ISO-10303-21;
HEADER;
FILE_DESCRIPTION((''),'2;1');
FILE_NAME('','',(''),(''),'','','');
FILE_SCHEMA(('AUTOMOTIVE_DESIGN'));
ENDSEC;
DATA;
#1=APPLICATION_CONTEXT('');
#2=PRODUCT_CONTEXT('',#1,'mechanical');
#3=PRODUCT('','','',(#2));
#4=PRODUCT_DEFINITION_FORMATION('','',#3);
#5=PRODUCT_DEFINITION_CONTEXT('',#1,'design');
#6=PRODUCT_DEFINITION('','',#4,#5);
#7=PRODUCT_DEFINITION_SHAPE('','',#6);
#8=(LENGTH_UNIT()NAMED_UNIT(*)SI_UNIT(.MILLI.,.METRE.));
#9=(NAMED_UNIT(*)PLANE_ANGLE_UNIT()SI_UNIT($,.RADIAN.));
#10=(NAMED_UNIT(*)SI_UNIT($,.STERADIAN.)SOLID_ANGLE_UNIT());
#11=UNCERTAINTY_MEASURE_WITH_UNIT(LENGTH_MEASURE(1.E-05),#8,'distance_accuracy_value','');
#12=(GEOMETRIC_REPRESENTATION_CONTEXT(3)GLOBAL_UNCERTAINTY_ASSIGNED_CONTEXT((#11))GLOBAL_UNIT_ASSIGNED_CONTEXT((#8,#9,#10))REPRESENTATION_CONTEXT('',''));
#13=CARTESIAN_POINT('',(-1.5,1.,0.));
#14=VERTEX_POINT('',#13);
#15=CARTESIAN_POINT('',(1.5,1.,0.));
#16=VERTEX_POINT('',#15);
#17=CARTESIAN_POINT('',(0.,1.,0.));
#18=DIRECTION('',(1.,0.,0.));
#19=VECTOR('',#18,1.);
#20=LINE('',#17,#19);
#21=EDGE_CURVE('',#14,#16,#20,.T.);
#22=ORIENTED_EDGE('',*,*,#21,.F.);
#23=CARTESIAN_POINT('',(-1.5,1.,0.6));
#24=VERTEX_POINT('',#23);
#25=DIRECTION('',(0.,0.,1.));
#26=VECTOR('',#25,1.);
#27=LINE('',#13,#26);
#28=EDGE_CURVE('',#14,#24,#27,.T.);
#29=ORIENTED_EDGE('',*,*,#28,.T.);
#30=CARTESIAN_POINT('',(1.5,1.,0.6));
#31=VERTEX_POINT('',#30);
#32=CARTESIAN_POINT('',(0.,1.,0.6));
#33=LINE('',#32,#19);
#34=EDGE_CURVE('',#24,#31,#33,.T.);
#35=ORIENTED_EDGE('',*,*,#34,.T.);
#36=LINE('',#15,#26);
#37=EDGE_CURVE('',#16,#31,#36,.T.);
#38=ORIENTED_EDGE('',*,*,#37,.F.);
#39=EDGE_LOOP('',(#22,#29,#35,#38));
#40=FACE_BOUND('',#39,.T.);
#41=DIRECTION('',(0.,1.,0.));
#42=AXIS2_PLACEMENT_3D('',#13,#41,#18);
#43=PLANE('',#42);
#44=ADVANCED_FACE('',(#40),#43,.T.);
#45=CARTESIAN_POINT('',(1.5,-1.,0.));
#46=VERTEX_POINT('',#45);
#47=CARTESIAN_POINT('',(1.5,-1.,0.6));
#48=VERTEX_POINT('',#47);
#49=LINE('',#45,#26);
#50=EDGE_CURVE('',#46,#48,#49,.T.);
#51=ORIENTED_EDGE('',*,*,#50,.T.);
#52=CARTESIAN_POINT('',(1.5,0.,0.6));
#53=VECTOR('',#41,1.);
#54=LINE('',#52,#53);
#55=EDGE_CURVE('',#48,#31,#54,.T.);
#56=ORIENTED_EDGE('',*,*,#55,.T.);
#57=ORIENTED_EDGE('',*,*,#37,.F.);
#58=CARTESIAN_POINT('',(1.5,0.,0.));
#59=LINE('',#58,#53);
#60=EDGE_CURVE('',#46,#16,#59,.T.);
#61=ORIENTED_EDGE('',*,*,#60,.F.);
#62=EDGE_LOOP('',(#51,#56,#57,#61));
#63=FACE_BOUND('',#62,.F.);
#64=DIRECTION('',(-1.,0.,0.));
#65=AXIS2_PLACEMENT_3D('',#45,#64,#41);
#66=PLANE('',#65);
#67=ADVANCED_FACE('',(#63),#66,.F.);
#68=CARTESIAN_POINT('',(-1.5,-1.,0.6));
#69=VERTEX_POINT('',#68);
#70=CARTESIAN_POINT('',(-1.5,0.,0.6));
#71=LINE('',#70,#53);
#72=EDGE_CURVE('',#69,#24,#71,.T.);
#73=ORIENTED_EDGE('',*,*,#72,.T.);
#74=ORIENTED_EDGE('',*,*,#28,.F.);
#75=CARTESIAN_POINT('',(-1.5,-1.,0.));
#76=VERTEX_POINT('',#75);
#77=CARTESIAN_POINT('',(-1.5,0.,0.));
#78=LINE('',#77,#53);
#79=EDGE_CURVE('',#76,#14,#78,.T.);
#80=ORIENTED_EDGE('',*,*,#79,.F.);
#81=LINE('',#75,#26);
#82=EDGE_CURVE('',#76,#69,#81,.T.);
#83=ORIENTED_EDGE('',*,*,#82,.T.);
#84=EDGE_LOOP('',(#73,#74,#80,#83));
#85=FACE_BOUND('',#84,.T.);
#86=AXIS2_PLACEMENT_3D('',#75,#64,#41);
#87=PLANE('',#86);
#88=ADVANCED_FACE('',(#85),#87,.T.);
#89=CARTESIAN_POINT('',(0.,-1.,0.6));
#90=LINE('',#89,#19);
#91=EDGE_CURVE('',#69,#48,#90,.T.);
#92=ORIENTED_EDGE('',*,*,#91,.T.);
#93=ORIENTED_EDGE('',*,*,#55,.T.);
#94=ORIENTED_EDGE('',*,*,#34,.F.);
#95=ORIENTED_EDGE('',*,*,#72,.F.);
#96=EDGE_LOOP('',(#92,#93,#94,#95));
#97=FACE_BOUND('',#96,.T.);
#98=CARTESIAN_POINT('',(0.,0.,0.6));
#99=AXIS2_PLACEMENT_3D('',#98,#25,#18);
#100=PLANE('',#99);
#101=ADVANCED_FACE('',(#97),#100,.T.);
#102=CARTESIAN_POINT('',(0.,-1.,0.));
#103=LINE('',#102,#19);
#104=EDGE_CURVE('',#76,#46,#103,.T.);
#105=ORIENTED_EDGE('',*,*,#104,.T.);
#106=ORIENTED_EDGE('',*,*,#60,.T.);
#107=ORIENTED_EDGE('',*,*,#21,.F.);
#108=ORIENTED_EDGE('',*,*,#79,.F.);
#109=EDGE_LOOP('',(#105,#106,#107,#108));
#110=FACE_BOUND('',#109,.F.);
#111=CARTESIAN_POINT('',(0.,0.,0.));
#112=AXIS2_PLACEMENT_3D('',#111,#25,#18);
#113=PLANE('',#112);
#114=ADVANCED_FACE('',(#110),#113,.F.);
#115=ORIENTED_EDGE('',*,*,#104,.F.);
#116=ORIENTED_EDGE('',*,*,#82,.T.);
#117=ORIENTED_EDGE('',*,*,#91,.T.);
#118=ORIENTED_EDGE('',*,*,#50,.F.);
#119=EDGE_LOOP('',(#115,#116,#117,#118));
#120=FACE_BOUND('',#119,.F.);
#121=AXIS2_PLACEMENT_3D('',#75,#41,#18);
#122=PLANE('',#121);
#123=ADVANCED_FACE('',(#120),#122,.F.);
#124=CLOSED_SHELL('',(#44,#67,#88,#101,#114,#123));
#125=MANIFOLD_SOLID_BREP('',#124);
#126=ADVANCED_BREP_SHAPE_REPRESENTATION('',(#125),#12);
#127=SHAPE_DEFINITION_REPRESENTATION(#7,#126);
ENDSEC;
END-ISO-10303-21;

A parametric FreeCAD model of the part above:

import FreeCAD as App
import Part
import Sketcher
Q = App.Units.Quantity

doc = App.newDocument("Part")
params = doc.addObject("Spreadsheet::Sheet", "Params")
for row, (alias, value) in enumerate([
    ("sketch1_width", "3 mm"),
    ("sketch1_height", "2 mm"),
    ("pad1_length", "0.6 mm"),
], start=1):
    params.set(f"A{row}", alias)
    params.set(f"B{row}", "=" + value)
    params.setAlias(f"B{row}", alias)

body = doc.addObject("PartDesign::Body", "Body")

sketch1 = body.newObject("Sketcher::SketchObject", "Sketch")
sketch1.AttachmentSupport = (doc.getObject("XY_Plane"), [""])
sketch1.MapMode = "FlatFace"
sketch1.addGeometry([
    Part.LineSegment(App.Vector(-1.5, 1, 0), App.Vector(-1.5, -1, 0)),
    Part.LineSegment(App.Vector(-1.5, -1, 0), App.Vector(1.5, -1, 0)),
    Part.LineSegment(App.Vector(1.5, -1, 0), App.Vector(1.5, 1, 0)),
    Part.LineSegment(App.Vector(1.5, 1, 0), App.Vector(-1.5, 1, 0)),
], False)
sketch1.addConstraint([
    Sketcher.Constraint("Coincident", 0, 2, 1, 1),
    Sketcher.Constraint("Coincident", 1, 2, 2, 1),
    Sketcher.Constraint("Coincident", 2, 2, 3, 1),
    Sketcher.Constraint("Coincident", 3, 2, 0, 1),
    Sketcher.Constraint("Vertical", 0),
    Sketcher.Constraint("Horizontal", 1),
    Sketcher.Constraint("Vertical", 2),
    Sketcher.Constraint("Horizontal", 3),
    Sketcher.Constraint("Symmetric", 0, 2, 2, 2, -1, 1),
    Sketcher.Constraint("DistanceX", 1, 1, 1, 2, Q("3 mm")),
    Sketcher.Constraint("DistanceY", 0, 2, 0, 1, Q("2 mm")),
])
sketch1.setExpression("Constraints[9]", "Params.sketch1_width")
sketch1.setExpression("Constraints[10]", "Params.sketch1_height")
pad1 = body.newObject("PartDesign::Pad", "Pad")
pad1.Profile = sketch1
pad1.setExpression("Length", "Params.pad1_length")

doc.recompute()
